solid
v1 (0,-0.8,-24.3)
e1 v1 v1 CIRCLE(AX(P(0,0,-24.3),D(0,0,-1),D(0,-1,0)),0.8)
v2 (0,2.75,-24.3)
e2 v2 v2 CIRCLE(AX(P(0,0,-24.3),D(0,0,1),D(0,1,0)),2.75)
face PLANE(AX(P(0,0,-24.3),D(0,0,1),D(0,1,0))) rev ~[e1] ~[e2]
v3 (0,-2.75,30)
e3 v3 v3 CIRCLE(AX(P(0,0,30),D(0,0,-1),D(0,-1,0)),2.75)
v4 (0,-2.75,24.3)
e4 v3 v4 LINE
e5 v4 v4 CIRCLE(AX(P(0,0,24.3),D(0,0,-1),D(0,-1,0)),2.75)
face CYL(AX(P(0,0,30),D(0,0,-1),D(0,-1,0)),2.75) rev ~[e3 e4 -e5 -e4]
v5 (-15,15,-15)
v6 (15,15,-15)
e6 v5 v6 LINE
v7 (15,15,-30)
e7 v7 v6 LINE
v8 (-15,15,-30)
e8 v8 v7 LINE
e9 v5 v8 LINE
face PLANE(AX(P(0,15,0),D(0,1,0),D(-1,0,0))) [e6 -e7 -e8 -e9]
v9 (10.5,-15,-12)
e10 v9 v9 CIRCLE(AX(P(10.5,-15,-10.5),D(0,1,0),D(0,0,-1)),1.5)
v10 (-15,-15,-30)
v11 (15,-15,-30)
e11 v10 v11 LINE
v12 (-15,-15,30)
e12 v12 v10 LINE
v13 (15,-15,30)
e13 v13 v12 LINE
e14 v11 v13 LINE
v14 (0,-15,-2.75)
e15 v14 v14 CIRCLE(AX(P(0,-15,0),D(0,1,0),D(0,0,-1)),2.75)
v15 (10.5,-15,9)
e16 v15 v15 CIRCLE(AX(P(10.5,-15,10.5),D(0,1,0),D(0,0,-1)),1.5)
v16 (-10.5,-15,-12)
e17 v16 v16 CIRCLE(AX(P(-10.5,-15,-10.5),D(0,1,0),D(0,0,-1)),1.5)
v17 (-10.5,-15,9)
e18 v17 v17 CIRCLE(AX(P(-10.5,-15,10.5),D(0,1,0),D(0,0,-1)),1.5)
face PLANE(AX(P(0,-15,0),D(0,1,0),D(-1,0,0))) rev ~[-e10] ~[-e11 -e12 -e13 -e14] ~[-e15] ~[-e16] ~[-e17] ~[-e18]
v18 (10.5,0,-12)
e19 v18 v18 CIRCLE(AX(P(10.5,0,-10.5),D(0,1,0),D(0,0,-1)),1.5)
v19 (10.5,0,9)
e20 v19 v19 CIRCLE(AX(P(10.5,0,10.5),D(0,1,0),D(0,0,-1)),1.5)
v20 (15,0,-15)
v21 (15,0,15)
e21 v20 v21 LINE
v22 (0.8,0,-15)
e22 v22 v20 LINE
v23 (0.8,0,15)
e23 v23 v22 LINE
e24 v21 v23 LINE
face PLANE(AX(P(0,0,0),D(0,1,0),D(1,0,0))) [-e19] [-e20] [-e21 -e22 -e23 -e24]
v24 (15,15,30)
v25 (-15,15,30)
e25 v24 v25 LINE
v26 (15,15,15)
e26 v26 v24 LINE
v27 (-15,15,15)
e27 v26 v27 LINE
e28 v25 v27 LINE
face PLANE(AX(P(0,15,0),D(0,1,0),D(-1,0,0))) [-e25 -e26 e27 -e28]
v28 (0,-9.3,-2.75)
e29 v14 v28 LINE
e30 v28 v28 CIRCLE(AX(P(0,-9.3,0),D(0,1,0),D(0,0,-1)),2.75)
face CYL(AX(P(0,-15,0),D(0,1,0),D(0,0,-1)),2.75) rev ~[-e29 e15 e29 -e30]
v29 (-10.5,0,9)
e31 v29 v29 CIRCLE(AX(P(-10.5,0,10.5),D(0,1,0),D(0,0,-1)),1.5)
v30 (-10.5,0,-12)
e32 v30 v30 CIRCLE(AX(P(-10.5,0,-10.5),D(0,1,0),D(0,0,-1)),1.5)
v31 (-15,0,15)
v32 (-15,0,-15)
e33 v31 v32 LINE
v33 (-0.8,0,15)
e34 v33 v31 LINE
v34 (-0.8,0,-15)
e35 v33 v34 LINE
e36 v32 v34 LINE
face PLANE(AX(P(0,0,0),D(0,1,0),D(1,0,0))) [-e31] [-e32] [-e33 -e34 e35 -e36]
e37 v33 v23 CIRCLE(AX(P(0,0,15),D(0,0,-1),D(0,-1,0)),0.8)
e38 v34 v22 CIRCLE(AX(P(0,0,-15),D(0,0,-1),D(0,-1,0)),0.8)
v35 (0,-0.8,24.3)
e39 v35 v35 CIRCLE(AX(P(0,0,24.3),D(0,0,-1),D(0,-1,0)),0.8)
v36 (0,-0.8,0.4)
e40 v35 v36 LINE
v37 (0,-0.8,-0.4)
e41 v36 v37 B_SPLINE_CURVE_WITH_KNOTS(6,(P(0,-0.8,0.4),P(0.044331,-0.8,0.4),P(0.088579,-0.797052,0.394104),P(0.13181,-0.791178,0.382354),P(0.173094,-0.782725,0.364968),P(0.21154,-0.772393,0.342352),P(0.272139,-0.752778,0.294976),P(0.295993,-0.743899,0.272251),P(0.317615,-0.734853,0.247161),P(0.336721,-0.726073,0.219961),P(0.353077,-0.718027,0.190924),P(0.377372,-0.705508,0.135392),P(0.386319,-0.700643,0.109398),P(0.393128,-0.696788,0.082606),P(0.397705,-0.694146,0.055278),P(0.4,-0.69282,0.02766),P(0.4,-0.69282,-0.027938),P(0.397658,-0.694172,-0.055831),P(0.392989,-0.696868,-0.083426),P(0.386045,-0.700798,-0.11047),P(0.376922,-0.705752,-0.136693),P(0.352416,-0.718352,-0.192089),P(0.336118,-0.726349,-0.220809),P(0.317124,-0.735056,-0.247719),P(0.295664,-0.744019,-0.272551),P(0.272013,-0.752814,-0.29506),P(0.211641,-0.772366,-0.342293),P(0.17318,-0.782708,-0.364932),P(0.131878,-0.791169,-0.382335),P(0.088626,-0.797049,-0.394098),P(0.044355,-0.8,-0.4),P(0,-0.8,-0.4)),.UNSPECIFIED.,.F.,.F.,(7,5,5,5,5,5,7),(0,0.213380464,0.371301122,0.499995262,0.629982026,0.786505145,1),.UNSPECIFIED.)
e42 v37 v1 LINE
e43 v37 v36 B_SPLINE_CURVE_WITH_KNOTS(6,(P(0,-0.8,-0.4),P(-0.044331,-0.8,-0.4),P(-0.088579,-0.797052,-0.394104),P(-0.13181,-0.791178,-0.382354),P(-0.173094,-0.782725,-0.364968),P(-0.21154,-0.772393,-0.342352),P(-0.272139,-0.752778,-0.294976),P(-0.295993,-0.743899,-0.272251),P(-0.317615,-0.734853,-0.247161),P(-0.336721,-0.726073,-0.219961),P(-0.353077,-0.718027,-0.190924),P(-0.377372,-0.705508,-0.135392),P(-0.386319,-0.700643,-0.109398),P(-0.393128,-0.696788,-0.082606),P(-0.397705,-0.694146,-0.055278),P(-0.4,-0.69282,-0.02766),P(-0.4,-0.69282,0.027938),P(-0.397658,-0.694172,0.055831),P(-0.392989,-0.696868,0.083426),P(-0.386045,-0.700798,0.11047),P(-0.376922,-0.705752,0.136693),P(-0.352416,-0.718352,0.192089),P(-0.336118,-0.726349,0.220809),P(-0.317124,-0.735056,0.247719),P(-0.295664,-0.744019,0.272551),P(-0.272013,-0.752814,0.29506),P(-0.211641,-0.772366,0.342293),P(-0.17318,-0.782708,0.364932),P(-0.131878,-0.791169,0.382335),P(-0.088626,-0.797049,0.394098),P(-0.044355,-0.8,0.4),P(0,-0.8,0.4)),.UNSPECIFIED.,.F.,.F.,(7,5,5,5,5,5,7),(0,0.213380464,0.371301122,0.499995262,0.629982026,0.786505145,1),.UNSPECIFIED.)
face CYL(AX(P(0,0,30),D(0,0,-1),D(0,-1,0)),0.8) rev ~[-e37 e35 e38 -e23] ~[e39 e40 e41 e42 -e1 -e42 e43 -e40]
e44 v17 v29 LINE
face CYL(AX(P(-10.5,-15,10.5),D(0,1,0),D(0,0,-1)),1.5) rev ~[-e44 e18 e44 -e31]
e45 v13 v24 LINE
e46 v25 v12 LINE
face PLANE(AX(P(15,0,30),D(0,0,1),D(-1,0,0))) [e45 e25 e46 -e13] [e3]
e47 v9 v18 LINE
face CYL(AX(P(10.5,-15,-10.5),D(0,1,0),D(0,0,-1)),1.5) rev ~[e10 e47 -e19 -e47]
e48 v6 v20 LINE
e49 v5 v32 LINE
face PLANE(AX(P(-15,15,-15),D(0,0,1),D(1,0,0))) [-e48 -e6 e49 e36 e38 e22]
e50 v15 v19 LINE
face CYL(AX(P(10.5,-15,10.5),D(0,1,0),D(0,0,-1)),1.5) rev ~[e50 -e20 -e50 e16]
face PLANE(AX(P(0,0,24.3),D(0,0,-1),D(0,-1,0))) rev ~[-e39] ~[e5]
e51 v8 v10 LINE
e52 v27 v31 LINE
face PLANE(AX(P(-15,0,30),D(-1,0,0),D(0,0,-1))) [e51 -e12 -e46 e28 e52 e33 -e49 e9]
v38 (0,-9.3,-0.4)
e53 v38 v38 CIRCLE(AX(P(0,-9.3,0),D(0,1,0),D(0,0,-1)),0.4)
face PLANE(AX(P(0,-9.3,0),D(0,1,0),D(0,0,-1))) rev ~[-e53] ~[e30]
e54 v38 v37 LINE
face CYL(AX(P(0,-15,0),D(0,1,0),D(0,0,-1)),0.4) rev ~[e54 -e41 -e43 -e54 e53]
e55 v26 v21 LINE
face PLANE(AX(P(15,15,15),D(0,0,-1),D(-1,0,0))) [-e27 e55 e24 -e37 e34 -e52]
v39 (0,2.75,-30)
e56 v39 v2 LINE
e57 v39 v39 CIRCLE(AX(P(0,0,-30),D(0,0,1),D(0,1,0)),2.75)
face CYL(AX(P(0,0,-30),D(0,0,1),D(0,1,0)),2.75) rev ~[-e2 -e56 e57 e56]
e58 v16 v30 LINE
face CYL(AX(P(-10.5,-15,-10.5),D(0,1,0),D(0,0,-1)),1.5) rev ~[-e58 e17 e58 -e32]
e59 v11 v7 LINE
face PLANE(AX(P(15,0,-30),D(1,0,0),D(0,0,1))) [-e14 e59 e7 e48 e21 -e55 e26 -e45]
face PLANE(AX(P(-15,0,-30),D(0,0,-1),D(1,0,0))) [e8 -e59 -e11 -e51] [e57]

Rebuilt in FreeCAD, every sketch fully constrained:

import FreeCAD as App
import Part
import Sketcher

V = App.Vector

doc = App.newDocument("Part")
params = doc.addObject("Spreadsheet::Sheet", "Params")
for row, (alias, value) in enumerate([
    ("sketch1_width", "30 mm"),
    ("sketch1_height", "60 mm"),
    ("pad1_length", "30 mm"),
    ("sketch2_width", "30 mm"),
    ("pocket1_length", "15 mm"),
    ("sketch3_diameter", "1.6 mm"),
    ("hole_diameter", "1.6 mm"),
    ("sketch4_diameter", "0.8 mm"),
    ("hole2_diameter", "0.8 mm"),
    ("sketch5_diameter", "5.5 mm"),
    ("hole3_diameter", "5.5 mm"),
    ("hole3_depth", "5.7 mm"),
    ("sketch6_diameter", "5.5 mm"),
    ("hole4_diameter", "5.5 mm"),
    ("hole4_depth", "5.7 mm"),
    ("sketch7_diameter", "5.5 mm"),
    ("hole5_diameter", "5.5 mm"),
    ("hole5_depth", "5.7 mm"),
    ("sketch8_diameter", "3 mm"),
    ("hole6_diameter", "3 mm"),
], start=1):
    params.set(f"A{row}", alias)
    params.set(f"B{row}", "=" + value)
    params.setAlias(f"B{row}", alias)

body = doc.addObject("PartDesign::Body", "Body")

# Sketch on XZ plane
sketch1 = doc.addObject("Sketcher::SketchObject", "Sketch")
body.addObject(sketch1)
sketch1.AttachmentSupport = (doc.XZ_Plane, [""])
sketch1.MapMode = "FlatFace"
sketch1.addGeometry([
    Part.LineSegment(V(-15, 30, 0), V(15, 30, 0)),
    Part.LineSegment(V(15, 30, 0), V(15, -30, 0)),
    Part.LineSegment(V(15, -30, 0), V(-15, -30, 0)),
    Part.LineSegment(V(-15, -30, 0), V(-15, 30, 0)),
], False)
sketch1.addConstraint([
    Sketcher.Constraint("Coincident", 0, 2, 1, 1),
    Sketcher.Constraint("Coincident", 1, 2, 2, 1),
    Sketcher.Constraint("Coincident", 2, 2, 3, 1),
    Sketcher.Constraint("Coincident", 3, 2, 0, 1),
    Sketcher.Constraint("Horizontal", 0),
    Sketcher.Constraint("Vertical", 1),
    Sketcher.Constraint("Horizontal", 2),
    Sketcher.Constraint("Vertical", 3),
    Sketcher.Constraint("Symmetric", 0, 2, 2, 2, -1, 1),
    Sketcher.Constraint("DistanceX", 0, 1, 0, 2, 30.0),
    Sketcher.Constraint("DistanceY", 1, 2, 1, 1, 60.0),
])
sketch1.setExpression("Constraints[9]", "Params.sketch1_width")
sketch1.setExpression("Constraints[10]", "Params.sketch1_height")
pad1 = doc.addObject("PartDesign::Pad", "Pad")
body.addObject(pad1)
pad1.Profile = sketch1
pad1.setExpression("Length", "Params.pad1_length")
pad1.Midplane = True

# Sketch on XZ plane
sketch2 = doc.addObject("Sketcher::SketchObject", "Sketch001")
body.addObject(sketch2)
sketch2.AttachmentSupport = (doc.XZ_Plane, [""])
sketch2.MapMode = "FlatFace"
sketch2.AttachmentOffset = App.Placement(V(0, 0, -15), App.Rotation())
sketch2.addGeometry([
    Part.LineSegment(V(-15, 15, 0), V(15, 15, 0)),
    Part.LineSegment(V(15, 15, 0), V(15, -15, 0)),
    Part.LineSegment(V(15, -15, 0), V(-15, -15, 0)),
    Part.LineSegment(V(-15, -15, 0), V(-15, 15, 0)),
], False)
sketch2.addConstraint([
    Sketcher.Constraint("Coincident", 0, 2, 1, 1),
    Sketcher.Constraint("Coincident", 1, 2, 2, 1),
    Sketcher.Constraint("Coincident", 2, 2, 3, 1),
    Sketcher.Constraint("Coincident", 3, 2, 0, 1),
    Sketcher.Constraint("Horizontal", 0),
    Sketcher.Constraint("Vertical", 1),
    Sketcher.Constraint("Horizontal", 2),
    Sketcher.Constraint("Vertical", 3),
    Sketcher.Constraint("Symmetric", 0, 2, 2, 2, -1, 1),
    Sketcher.Constraint("Equal", 2, 1),
    Sketcher.Constraint("DistanceX", 0, 1, 0, 2, 30.0),
])
sketch2.setExpression("Constraints[10]", "Params.sketch2_width")
pocket1 = doc.addObject("PartDesign::Pocket", "Pocket")
body.addObject(pocket1)
pocket1.Profile = sketch2
pocket1.setExpression("Length", "Params.pocket1_length")
pocket1.Reversed = True

# Sketch on XY plane
sketch3 = doc.addObject("Sketcher::SketchObject", "Sketch002")
body.addObject(sketch3)
sketch3.AttachmentSupport = (doc.XY_Plane, [""])
sketch3.MapMode = "FlatFace"
sketch3.AttachmentOffset = App.Placement(V(0, 0, 30), App.Rotation())
sketch3.addGeometry(Part.Circle(V(0, 0, 0), V(0, 0, 1), 0.8), False)
sketch3.addConstraint([
    Sketcher.Constraint("Coincident", 0, 3, -1, 1),
    Sketcher.Constraint("Diameter", 0, 1.6),
])
sketch3.setExpression("Constraints[1]", "Params.sketch3_diameter")
doc.recompute()
hole = doc.addObject("PartDesign::Hole", "Hole")
body.addObject(hole)
hole.Profile = sketch3
hole.ThreadType = "None"
hole.setExpression("Diameter", "Params.hole_diameter")
hole.DepthType = "ThroughAll"

# Sketch on XZ plane
sketch4 = doc.addObject("Sketcher::SketchObject", "Sketch003")
body.addObject(sketch4)
sketch4.AttachmentSupport = (doc.XZ_Plane, [""])
sketch4.MapMode = "FlatFace"
sketch4.AttachmentOffset = App.Placement(V(0, 0, 15), App.Rotation())
sketch4.addGeometry(Part.Circle(V(0, 0, 0), V(0, 0, 1), 0.4), False)
sketch4.addConstraint([
    Sketcher.Constraint("Coincident", 0, 3, -1, 1),
    Sketcher.Constraint("Diameter", 0, 0.8),
])
sketch4.setExpression("Constraints[1]", "Params.sketch4_diameter")
doc.recompute()
hole2 = doc.addObject("PartDesign::Hole", "Hole001")
body.addObject(hole2)
hole2.Profile = sketch4
hole2.ThreadType = "None"
hole2.setExpression("Diameter", "Params.hole2_diameter")
hole2.DepthType = "ThroughAll"

# Sketch on XY plane
sketch5 = doc.addObject("Sketcher::SketchObject", "Sketch004")
body.addObject(sketch5)
sketch5.AttachmentSupport = (doc.XY_Plane, [""])
sketch5.MapMode = "FlatFace"
sketch5.AttachmentOffset = App.Placement(V(0, 0, -30), App.Rotation())
sketch5.addGeometry(Part.Circle(V(0, 0, 0), V(0, 0, 1), 2.75), False)
sketch5.addConstraint([
    Sketcher.Constraint("Coincident", 0, 3, -1, 1),
    Sketcher.Constraint("Diameter", 0, 5.5),
])
sketch5.setExpression("Constraints[1]", "Params.sketch5_diameter")
doc.recompute()
hole3 = doc.addObject("PartDesign::Hole", "Hole002")
body.addObject(hole3)
hole3.Profile = sketch5
hole3.ThreadType = "None"
hole3.setExpression("Diameter", "Params.hole3_diameter")
hole3.DepthType = "Dimension"
hole3.setExpression("Depth", "Params.hole3_depth")
hole3.DrillPoint = "Flat"
hole3.Reversed = True

# Sketch on XY plane
sketch6 = doc.addObject("Sketcher::SketchObject", "Sketch005")
body.addObject(sketch6)
sketch6.AttachmentSupport = (doc.XY_Plane, [""])
sketch6.MapMode = "FlatFace"
sketch6.AttachmentOffset = App.Placement(V(0, 0, 30), App.Rotation())
sketch6.addGeometry(Part.Circle(V(0, 0, 0), V(0, 0, 1), 2.75), False)
sketch6.addConstraint([
    Sketcher.Constraint("Coincident", 0, 3, -1, 1),
    Sketcher.Constraint("Diameter", 0, 5.5),
])
sketch6.setExpression("Constraints[1]", "Params.sketch6_diameter")
doc.recompute()
hole4 = doc.addObject("PartDesign::Hole", "Hole003")
body.addObject(hole4)
hole4.Profile = sketch6
hole4.ThreadType = "None"
hole4.setExpression("Diameter", "Params.hole4_diameter")
hole4.DepthType = "Dimension"
hole4.setExpression("Depth", "Params.hole4_depth")
hole4.DrillPoint = "Flat"

# Sketch on XZ plane
sketch7 = doc.addObject("Sketcher::SketchObject", "Sketch006")
body.addObject(sketch7)
sketch7.AttachmentSupport = (doc.XZ_Plane, [""])
sketch7.MapMode = "FlatFace"
sketch7.AttachmentOffset = App.Placement(V(0, 0, 15), App.Rotation())
sketch7.addGeometry(Part.Circle(V(0, 0, 0), V(0, 0, 1), 2.75), False)
sketch7.addConstraint([
    Sketcher.Constraint("Coincident", 0, 3, -1, 1),
    Sketcher.Constraint("Diameter", 0, 5.5),
])
sketch7.setExpression("Constraints[1]", "Params.sketch7_diameter")
doc.recompute()
hole5 = doc.addObject("PartDesign::Hole", "Hole004")
body.addObject(hole5)
hole5.Profile = sketch7
hole5.ThreadType = "None"
hole5.setExpression("Diameter", "Params.hole5_diameter")
hole5.DepthType = "Dimension"
hole5.setExpression("Depth", "Params.hole5_depth")
hole5.DrillPoint = "Flat"

# Sketch on XZ plane
sketch8 = doc.addObject("Sketcher::SketchObject", "Sketch007")
body.addObject(sketch8)
sketch8.AttachmentSupport = (doc.XZ_Plane, [""])
sketch8.MapMode = "FlatFace"
sketch8.AttachmentOffset = App.Placement(V(0, 0, 15), App.Rotation())
sketch8.addGeometry([
    Part.Circle(V(10.5, -10.5, 0), V(0, 0, 1), 1.5),
    Part.Circle(V(-10.5, -10.5, 0), V(0, 0, 1), 1.5),
    Part.Circle(V(10.5, 10.5, 0), V(0, 0, 1), 1.5),
    Part.Circle(V(-10.5, 10.5, 0), V(0, 0, 1), 1.5),
], False)
sketch8.addConstraint([
    Sketcher.Constraint("Equal", 0, 1),
    Sketcher.Constraint("Equal", 1, 2),
    Sketcher.Constraint("Equal", 2, 3),
    Sketcher.Constraint("Symmetric", 1, 3, 2, 3, -1, 1),
    Sketcher.Constraint("Symmetric", 0, 3, 3, 3, -1, 1),
    Sketcher.Constraint("Symmetric", 0, 3, 1, 3, -2),
    Sketcher.Constraint("Diameter", 0, 3.0),
    Sketcher.Constraint("DistanceX", 1, 3, 0, 3, 21.0),
    Sketcher.Constraint("DistanceY", 0, 3, 2, 3, 21.0),
])
sketch8.setExpression("Constraints[6]", "Params.sketch8_diameter")
doc.recompute()
hole6 = doc.addObject("PartDesign::Hole", "Hole005")
body.addObject(hole6)
hole6.Profile = sketch8
hole6.ThreadType = "None"
hole6.setExpression("Diameter", "Params.hole6_diameter")
hole6.DepthType = "ThroughAll"

doc.recompute()
